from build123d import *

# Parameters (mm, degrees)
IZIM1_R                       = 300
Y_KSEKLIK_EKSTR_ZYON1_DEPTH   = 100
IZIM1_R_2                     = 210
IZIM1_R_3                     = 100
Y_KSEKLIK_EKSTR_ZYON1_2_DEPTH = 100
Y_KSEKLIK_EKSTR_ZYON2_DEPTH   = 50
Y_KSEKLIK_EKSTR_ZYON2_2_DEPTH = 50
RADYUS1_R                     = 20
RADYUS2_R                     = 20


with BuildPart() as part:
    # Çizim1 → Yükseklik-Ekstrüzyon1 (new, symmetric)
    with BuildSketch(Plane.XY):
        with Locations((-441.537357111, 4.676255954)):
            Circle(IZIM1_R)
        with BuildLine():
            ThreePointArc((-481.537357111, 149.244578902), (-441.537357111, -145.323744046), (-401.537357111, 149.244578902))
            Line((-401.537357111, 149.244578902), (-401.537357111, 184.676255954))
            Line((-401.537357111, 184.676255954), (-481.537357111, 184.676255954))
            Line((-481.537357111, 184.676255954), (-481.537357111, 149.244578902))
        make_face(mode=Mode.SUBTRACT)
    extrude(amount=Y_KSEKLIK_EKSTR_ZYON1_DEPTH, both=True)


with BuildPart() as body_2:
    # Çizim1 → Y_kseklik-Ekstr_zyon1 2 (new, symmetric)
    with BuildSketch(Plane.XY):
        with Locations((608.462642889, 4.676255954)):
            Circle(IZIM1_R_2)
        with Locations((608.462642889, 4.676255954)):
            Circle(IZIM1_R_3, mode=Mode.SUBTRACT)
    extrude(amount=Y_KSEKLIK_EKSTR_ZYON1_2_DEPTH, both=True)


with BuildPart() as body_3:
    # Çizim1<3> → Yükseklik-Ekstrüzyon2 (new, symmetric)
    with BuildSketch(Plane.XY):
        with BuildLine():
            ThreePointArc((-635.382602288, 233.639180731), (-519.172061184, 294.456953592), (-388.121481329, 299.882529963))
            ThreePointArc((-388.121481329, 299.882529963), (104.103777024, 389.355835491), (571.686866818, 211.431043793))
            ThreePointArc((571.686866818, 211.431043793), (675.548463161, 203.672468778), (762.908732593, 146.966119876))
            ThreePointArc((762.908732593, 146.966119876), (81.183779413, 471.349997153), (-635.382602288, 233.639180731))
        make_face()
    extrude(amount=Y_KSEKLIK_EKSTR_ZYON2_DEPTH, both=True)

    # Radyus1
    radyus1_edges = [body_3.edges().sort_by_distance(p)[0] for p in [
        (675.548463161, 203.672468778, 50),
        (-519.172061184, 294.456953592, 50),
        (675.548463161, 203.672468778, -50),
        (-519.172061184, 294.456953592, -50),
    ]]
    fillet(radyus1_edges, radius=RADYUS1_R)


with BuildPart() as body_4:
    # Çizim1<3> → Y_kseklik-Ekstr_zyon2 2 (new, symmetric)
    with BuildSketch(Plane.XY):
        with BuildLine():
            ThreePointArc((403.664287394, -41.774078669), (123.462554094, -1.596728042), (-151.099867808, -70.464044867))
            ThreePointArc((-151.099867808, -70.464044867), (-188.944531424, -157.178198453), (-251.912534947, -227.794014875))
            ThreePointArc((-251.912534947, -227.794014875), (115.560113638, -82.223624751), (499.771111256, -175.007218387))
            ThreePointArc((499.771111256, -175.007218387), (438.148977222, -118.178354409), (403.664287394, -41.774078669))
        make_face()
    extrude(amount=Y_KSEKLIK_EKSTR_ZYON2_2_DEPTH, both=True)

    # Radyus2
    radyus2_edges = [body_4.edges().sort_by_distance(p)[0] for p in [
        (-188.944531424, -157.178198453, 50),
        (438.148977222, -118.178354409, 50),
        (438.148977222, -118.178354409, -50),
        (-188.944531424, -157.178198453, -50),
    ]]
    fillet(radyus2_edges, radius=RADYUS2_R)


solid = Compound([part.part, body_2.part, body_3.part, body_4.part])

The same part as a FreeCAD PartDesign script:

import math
import FreeCAD as App
import Part
import Sketcher
from FreeCAD import Vector
Q = App.Units.Quantity


def edges_at(feature, points):
    """Names of the edges that pass closest to the given points."""
    edges = feature.Shape.Edges
    near = lambda p: min(range(len(edges)), key=lambda i: edges[i].distToShape(Part.Vertex(*p))[0])
    return sorted({f"Edge{near(p) + 1}" for p in points})

doc = App.newDocument("Part")
body = doc.addObject("PartDesign::Body", "Body")

sketch1 = doc.addObject("Sketcher::SketchObject", "Sketch")
body.addObject(sketch1)
sketch1.AttachmentSupport = (doc.XY_Plane, [""])
sketch1.MapMode = "FlatFace"
sketch1.addGeometry([
    Part.Circle(Vector(-441.537357, 4.676256, 0), Vector(0, 0, 1), 300),
    Part.ArcOfCircle(Part.Circle(Vector(-441.537357, 4.676256, 0), Vector(0, 0, 1), 150), math.radians(105.46601), math.radians(434.53399)),
    Part.LineSegment(Vector(-481.537357, 149.244579, 0), Vector(-481.537357, 184.676256, 0)),
    Part.LineSegment(Vector(-481.537357, 184.676256, 0), Vector(-401.537357, 184.676256, 0)),
    Part.LineSegment(Vector(-401.537357, 184.676256, 0), Vector(-401.537357, 149.244579, 0)),
], False)
sketch1.addConstraint([
    Sketcher.Constraint("Coincident", 1, 1, 2, 1),
    Sketcher.Constraint("Coincident", 2, 2, 3, 1),
    Sketcher.Constraint("Coincident", 3, 2, 4, 1),
    Sketcher.Constraint("Coincident", 4, 2, 1, 2),
    Sketcher.Constraint("Vertical", 2),
    Sketcher.Constraint("Horizontal", 3),
    Sketcher.Constraint("Vertical", 4),
    Sketcher.Constraint("Coincident", 1, 3, 0, 3),
    Sketcher.Constraint("Horizontal", 1, 1, 4, 2),
    Sketcher.Constraint("Diameter", 0, Q("600 mm")),
    Sketcher.Constraint("Radius", 1, Q("150 mm")),
    Sketcher.Constraint("DistanceX", 3, 1, 3, 2, Q("80 mm")),
    Sketcher.Constraint("DistanceY", 0, 3, 2, 2, Q("180 mm")),
    Sketcher.Constraint("DistanceY", -1, 1, 1, 1, Q("149.244579 mm")),
    Sketcher.Constraint("DistanceX", 0, 3, -1, 1, Q("441.537357 mm")),
])
pad1 = doc.addObject("PartDesign::Pad", "Pad")
body.addObject(pad1)
pad1.Profile = sketch1
pad1.Length = 200
pad1.Midplane = True
body2 = doc.addObject("PartDesign::Body", "Body001")

sketch2 = doc.addObject("Sketcher::SketchObject", "Sketch001")
body2.addObject(sketch2)
sketch2.AttachmentSupport = (doc.getObject("XY_Plane001"), [""])
sketch2.MapMode = "FlatFace"
sketch2.addGeometry([
    Part.Circle(Vector(608.462643, 4.676256, 0), Vector(0, 0, 1), 210),
    Part.Circle(Vector(608.462643, 4.676256, 0), Vector(0, 0, 1), 100),
], False)
sketch2.addConstraint([
    Sketcher.Constraint("Coincident", 1, 3, 0, 3),
    Sketcher.Constraint("Diameter", 0, Q("420 mm")),
    Sketcher.Constraint("Diameter", 1, Q("200 mm")),
    Sketcher.Constraint("DistanceX", -1, 1, 0, 3, Q("608.462643 mm")),
    Sketcher.Constraint("DistanceY", -1, 1, 0, 3, Q("4.676256 mm")),
])
pad2 = doc.addObject("PartDesign::Pad", "Pad001")
body2.addObject(pad2)
pad2.Profile = sketch2
pad2.Length = 200
pad2.Midplane = True
body3 = doc.addObject("PartDesign::Body", "Body002")

sketch3 = doc.addObject("Sketcher::SketchObject", "Sketch002")
body3.addObject(sketch3)
sketch3.AttachmentSupport = (doc.getObject("XY_Plane002"), [""])
sketch3.MapMode = "FlatFace"
sketch3.addGeometry([
    Part.ArcOfCircle(Part.Circle(Vector(-441.537357, 4.676256, 0), Vector(0, 0, 1), 300), math.radians(79.743632), math.radians(130.252015)),
    Part.ArcOfCircle(Part.Circle(Vector(18.570498, -538.786341, 0), Vector(0, 0, 1), 932.075019), math.radians(53.599584), math.radians(115.869933)),
    Part.ArcOfCircle(Part.Circle(Vector(608.462643, 4.676256, 0), Vector(0, 0, 1), 210), math.radians(42.654106), math.radians(100.085801)),
    Part.ArcOfCircle(Part.Circle(Vector(18.570498, -538.786341, 0), Vector(0, 0, 1), 1012.075019), math.radians(42.654106), math.radians(130.252015)),
], False)
sketch3.addConstraint([
    Sketcher.Constraint("Coincident", 0, 1, 1, 2),
    Sketcher.Constraint("Coincident", 1, 1, 2, 2),
    Sketcher.Constraint("Tangent", 2, 1, 3, 1),
    Sketcher.Constraint("Tangent", 3, 2, 0, 2),
    Sketcher.Constraint("Coincident", 3, 3, 1, 3),
    Sketcher.Constraint("Horizontal", 0, 3, 2, 3),
    Sketcher.Constraint("Radius", 0, Q("300 mm")),
    Sketcher.Constraint("Radius", 2, Q("210 mm")),
    Sketcher.Constraint("DistanceX", 0, 3, 2, 3, Q("1050 mm")),
    Sketcher.Constraint("Radius", 1, Q("932.075019 mm")),
    Sketcher.Constraint("Radius", 3, Q("1012.075019 mm")),
    Sketcher.Constraint("DistanceX", -1, 1, 1, 3, Q("18.570498 mm")),
    Sketcher.Constraint("DistanceY", 1, 3, -1, 1, Q("538.786341 mm")),
])
pad3 = doc.addObject("PartDesign::Pad", "Pad002")
body3.addObject(pad3)
pad3.Profile = sketch3
pad3.Length = 100
pad3.Midplane = True
doc.recompute()

fillet = doc.addObject("PartDesign::Fillet", "Fillet")
body3.addObject(fillet)
fillet.Base = (pad3, edges_at(pad3, [
    (675.548, 203.672, 50),
    (-519.172, 294.457, 50),
    (675.548, 203.672, -50),
    (-519.172, 294.457, -50),
]))
fillet.Radius = 20
body4 = doc.addObject("PartDesign::Body", "Body003")

sketch4 = doc.addObject("Sketcher::SketchObject", "Sketch003")
body4.addObject(sketch4)
sketch4.AttachmentSupport = (doc.getObject("XY_Plane003"), [""])
sketch4.MapMode = "FlatFace"
sketch4.addGeometry([
    Part.ArcOfCircle(Part.Circle(Vector(161.362394, -734.447804, 0), Vector(0, 0, 1), 733.830428), math.radians(70.719822), math.radians(115.201075)),
    Part.ArcOfCircle(Part.Circle(Vector(-441.537357, 4.676256, 0), Vector(0, 0, 1), 300), math.radians(-50.796049), math.radians(-14.505188)),
    Part.ArcOfCircle(Part.Circle(Vector(161.362394, -734.447804, 0), Vector(0, 0, 1), 653.830428), math.radians(58.830023), math.radians(129.203951)),
    Part.ArcOfCircle(Part.Circle(Vector(608.462643, 4.676256, 0), Vector(0, 0, 1), 210), math.radians(-167.220941), math.radians(-121.169977)),
], False)
sketch4.addConstraint([
    Sketcher.Constraint("Coincident", 0, 2, 1, 2),
    Sketcher.Constraint("Tangent", 1, 1, 2, 2),
    Sketcher.Constraint("Tangent", 2, 1, 3, 2),
    Sketcher.Constraint("Coincident", 3, 1, 0, 1),
    Sketcher.Constraint("Coincident", 2, 3, 0, 3),
    Sketcher.Constraint("Horizontal", 1, 3, 3, 3),
    Sketcher.Constraint("Radius", 1, Q("300 mm")),
    Sketcher.Constraint("Radius", 3, Q("210 mm")),
    Sketcher.Constraint("DistanceX", 1, 3, 3, 3, Q("1050 mm")),
    Sketcher.Constraint("Radius", 0, Q("733.830428 mm")),
    Sketcher.Constraint("Radius", 2, Q("653.830428 mm")),
    Sketcher.Constraint("DistanceY", 3, 1, -1, 1, Q("41.774079 mm")),
    Sketcher.Constraint("DistanceX", -1, 1, 0, 3, Q("161.362394 mm")),
])
pad4 = doc.addObject("PartDesign::Pad", "Pad003")
body4.addObject(pad4)
pad4.Profile = sketch4
pad4.Length = 100
pad4.Midplane = True
doc.recompute()

fillet2 = doc.addObject("PartDesign::Fillet", "Fillet001")
body4.addObject(fillet2)
fillet2.Base = (pad4, edges_at(pad4, [
    (-188.945, -157.178, 50),
    (438.149, -118.178, 50),
    (438.149, -118.178, -50),
    (-188.945, -157.178, -50),
]))
fillet2.Radius = 20

doc.recompute()
